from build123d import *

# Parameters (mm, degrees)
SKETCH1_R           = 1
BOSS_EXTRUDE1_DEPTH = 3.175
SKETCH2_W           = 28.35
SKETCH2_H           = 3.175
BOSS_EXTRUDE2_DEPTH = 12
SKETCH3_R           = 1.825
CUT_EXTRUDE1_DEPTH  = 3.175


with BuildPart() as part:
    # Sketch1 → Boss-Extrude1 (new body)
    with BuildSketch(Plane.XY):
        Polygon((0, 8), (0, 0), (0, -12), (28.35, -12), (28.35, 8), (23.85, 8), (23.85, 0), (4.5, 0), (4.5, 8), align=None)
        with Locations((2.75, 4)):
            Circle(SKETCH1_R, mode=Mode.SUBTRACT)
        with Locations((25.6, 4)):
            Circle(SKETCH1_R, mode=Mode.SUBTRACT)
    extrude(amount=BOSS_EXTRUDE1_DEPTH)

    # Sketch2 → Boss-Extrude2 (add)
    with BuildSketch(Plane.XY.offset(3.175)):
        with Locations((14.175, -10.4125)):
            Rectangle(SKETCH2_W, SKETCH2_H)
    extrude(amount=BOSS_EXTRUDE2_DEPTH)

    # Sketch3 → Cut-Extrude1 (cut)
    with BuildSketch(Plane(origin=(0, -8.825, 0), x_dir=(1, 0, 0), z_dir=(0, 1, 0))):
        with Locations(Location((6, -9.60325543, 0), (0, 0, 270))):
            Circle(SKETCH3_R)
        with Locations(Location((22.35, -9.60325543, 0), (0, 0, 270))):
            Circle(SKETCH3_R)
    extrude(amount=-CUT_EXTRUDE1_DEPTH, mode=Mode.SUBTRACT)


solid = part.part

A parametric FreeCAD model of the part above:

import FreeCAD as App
import Part
import Sketcher

V = App.Vector
Q = App.Units.Quantity


def add_polygon(sketch, points):
    """Adds a closed chain of lines whose ends are joined by coincident constraints."""
    first, n = sketch.GeometryCount, len(points)
    for a, b in zip(points, points[1:] + points[:1]):
        sketch.addGeometry(Part.LineSegment(App.Vector(*a, 0), App.Vector(*b, 0)), False)
    for i in range(n):
        sketch.addConstraint(Sketcher.Constraint("Coincident", first + i, 2, first + (i + 1) % n, 1))

doc = App.newDocument("Part")
body = doc.addObject("PartDesign::Body", "Body")

# Sketch on XY plane
sketch1 = body.newObject("Sketcher::SketchObject", "Sketch")
sketch1.AttachmentSupport = (doc.getObject("XY_Plane"), [""])
sketch1.MapMode = "FlatFace"
add_polygon(sketch1, [(0, 8), (0, -12), (28.4, -12), (28.4, 8), (23.9, 8), (23.9, 0), (4.5, 0), (4.5, 8)])  # lines 0-7
sketch1.addGeometry(Part.Circle(V(2.8, 4, 0), V(0, 0, 1), 1), False)  # 8
sketch1.addGeometry(Part.Circle(V(25.6, 4, 0), V(0, 0, 1), 1), False)  # 9
sketch1.addConstraint(Sketcher.Constraint("Vertical", 0))
sketch1.addConstraint(Sketcher.Constraint("Horizontal", 1))
sketch1.addConstraint(Sketcher.Constraint("Vertical", 2))
sketch1.addConstraint(Sketcher.Constraint("Horizontal", 3))
sketch1.addConstraint(Sketcher.Constraint("Vertical", 4))
sketch1.addConstraint(Sketcher.Constraint("Horizontal", 5))
sketch1.addConstraint(Sketcher.Constraint("Vertical", 6))
sketch1.addConstraint(Sketcher.Constraint("Horizontal", 7))
sketch1.addConstraint(Sketcher.Constraint("Equal", 8, 9))
sketch1.addConstraint(Sketcher.Constraint("PointOnObject", 0, 2, -2))
sketch1.addConstraint(Sketcher.Constraint("PointOnObject", 4, 2, -1))
sketch1.addConstraint(Sketcher.Constraint("Horizontal", 8, 3, 9, 3))
sketch1.addConstraint(Sketcher.Constraint("Horizontal", 3, 2, 6, 2))
sketch1.addConstraint(Sketcher.Constraint("Equal", 3, 7))
sketch1.addConstraint(Sketcher.Constraint("Diameter", 8, Q("2 mm")))
sketch1.addConstraint(Sketcher.Constraint("DistanceY", 0, 2, 0, 1, Q("20 mm")))
sketch1.addConstraint(Sketcher.Constraint("DistanceY", 4, 2, 4, 1, Q("8 mm")))
sketch1.addConstraint(Sketcher.Constraint("DistanceX", 3, 2, 3, 1, Q("4.5 mm")))
sketch1.addConstraint(Sketcher.Constraint("DistanceY", -1, 1, 8, 3, Q("4 mm")))
sketch1.addConstraint(Sketcher.Constraint("DistanceX", 1, 1, 1, 2, Q("28.35 mm")))
sketch1.addConstraint(Sketcher.Constraint("DistanceX", -1, 1, 9, 3, Q("25.6 mm")))
sketch1.addConstraint(Sketcher.Constraint("DistanceX", 8, 3, 1, 2, Q("25.6 mm")))
pad1 = body.newObject("PartDesign::Pad", "Pad")
pad1.Profile = sketch1
pad1.Length = 3.175

# Sketch on XY plane
sketch2 = body.newObject("Sketcher::SketchObject", "Sketch001")
sketch2.AttachmentSupport = (doc.getObject("XY_Plane"), [""])
sketch2.MapMode = "FlatFace"
sketch2.AttachmentOffset = App.Placement(V(0, 0, 3.175), App.Rotation())
add_polygon(sketch2, [(0, -8.8), (0, -12), (28.4, -12), (28.4, -8.8)])  # lines 0-3
sketch2.addConstraint(Sketcher.Constraint("Vertical", 0))
sketch2.addConstraint(Sketcher.Constraint("Horizontal", 1))
sketch2.addConstraint(Sketcher.Constraint("Vertical", 2))
sketch2.addConstraint(Sketcher.Constraint("Horizontal", 3))
sketch2.addConstraint(Sketcher.Constraint("PointOnObject", 0, 2, -2))
sketch2.addConstraint(Sketcher.Constraint("DistanceY", 0, 2, -1, 1, Q("12 mm")))
sketch2.addConstraint(Sketcher.Constraint("DistanceX", 1, 1, 1, 2, Q("28.35 mm")))
sketch2.addConstraint(Sketcher.Constraint("DistanceY", 0, 2, 0, 1, Q("3.175 mm")))
pad2 = body.newObject("PartDesign::Pad", "Pad001")
pad2.Profile = sketch2
pad2.Length = 12

# Sketch on XZ plane
sketch3 = body.newObject("Sketcher::SketchObject", "Sketch002")
sketch3.AttachmentSupport = (doc.getObject("XZ_Plane"), [""])
sketch3.MapMode = "FlatFace"
sketch3.AttachmentOffset = App.Placement(V(0, 0, 8.825), App.Rotation())
sketch3.addGeometry(Part.Circle(V(6, 9.6, 0), V(0, 0, 1), 1.8), False)
sketch3.addGeometry(Part.Circle(V(22.4, 9.6, 0), V(0, 0, 1), 1.8), False)
sketch3.addConstraint(Sketcher.Constraint("Equal", 0, 1))
sketch3.addConstraint(Sketcher.Constraint("Horizontal", 0, 3, 1, 3))
sketch3.addConstraint(Sketcher.Constraint("Diameter", 0, Q("3.65 mm")))
sketch3.addConstraint(Sketcher.Constraint("DistanceX", -1, 1, 0, 3, Q("6 mm")))
sketch3.addConstraint(Sketcher.Constraint("DistanceX", -1, 1, 1, 3, Q("22.35 mm")))
sketch3.addConstraint(Sketcher.Constraint("DistanceY", -1, 1, 0, 3, Q("9.603255 mm")))
pocket1 = body.newObject("PartDesign::Pocket", "Pocket")
pocket1.Profile = sketch3
pocket1.Length = 3.175
pocket1.Reversed = True

doc.recompute()
